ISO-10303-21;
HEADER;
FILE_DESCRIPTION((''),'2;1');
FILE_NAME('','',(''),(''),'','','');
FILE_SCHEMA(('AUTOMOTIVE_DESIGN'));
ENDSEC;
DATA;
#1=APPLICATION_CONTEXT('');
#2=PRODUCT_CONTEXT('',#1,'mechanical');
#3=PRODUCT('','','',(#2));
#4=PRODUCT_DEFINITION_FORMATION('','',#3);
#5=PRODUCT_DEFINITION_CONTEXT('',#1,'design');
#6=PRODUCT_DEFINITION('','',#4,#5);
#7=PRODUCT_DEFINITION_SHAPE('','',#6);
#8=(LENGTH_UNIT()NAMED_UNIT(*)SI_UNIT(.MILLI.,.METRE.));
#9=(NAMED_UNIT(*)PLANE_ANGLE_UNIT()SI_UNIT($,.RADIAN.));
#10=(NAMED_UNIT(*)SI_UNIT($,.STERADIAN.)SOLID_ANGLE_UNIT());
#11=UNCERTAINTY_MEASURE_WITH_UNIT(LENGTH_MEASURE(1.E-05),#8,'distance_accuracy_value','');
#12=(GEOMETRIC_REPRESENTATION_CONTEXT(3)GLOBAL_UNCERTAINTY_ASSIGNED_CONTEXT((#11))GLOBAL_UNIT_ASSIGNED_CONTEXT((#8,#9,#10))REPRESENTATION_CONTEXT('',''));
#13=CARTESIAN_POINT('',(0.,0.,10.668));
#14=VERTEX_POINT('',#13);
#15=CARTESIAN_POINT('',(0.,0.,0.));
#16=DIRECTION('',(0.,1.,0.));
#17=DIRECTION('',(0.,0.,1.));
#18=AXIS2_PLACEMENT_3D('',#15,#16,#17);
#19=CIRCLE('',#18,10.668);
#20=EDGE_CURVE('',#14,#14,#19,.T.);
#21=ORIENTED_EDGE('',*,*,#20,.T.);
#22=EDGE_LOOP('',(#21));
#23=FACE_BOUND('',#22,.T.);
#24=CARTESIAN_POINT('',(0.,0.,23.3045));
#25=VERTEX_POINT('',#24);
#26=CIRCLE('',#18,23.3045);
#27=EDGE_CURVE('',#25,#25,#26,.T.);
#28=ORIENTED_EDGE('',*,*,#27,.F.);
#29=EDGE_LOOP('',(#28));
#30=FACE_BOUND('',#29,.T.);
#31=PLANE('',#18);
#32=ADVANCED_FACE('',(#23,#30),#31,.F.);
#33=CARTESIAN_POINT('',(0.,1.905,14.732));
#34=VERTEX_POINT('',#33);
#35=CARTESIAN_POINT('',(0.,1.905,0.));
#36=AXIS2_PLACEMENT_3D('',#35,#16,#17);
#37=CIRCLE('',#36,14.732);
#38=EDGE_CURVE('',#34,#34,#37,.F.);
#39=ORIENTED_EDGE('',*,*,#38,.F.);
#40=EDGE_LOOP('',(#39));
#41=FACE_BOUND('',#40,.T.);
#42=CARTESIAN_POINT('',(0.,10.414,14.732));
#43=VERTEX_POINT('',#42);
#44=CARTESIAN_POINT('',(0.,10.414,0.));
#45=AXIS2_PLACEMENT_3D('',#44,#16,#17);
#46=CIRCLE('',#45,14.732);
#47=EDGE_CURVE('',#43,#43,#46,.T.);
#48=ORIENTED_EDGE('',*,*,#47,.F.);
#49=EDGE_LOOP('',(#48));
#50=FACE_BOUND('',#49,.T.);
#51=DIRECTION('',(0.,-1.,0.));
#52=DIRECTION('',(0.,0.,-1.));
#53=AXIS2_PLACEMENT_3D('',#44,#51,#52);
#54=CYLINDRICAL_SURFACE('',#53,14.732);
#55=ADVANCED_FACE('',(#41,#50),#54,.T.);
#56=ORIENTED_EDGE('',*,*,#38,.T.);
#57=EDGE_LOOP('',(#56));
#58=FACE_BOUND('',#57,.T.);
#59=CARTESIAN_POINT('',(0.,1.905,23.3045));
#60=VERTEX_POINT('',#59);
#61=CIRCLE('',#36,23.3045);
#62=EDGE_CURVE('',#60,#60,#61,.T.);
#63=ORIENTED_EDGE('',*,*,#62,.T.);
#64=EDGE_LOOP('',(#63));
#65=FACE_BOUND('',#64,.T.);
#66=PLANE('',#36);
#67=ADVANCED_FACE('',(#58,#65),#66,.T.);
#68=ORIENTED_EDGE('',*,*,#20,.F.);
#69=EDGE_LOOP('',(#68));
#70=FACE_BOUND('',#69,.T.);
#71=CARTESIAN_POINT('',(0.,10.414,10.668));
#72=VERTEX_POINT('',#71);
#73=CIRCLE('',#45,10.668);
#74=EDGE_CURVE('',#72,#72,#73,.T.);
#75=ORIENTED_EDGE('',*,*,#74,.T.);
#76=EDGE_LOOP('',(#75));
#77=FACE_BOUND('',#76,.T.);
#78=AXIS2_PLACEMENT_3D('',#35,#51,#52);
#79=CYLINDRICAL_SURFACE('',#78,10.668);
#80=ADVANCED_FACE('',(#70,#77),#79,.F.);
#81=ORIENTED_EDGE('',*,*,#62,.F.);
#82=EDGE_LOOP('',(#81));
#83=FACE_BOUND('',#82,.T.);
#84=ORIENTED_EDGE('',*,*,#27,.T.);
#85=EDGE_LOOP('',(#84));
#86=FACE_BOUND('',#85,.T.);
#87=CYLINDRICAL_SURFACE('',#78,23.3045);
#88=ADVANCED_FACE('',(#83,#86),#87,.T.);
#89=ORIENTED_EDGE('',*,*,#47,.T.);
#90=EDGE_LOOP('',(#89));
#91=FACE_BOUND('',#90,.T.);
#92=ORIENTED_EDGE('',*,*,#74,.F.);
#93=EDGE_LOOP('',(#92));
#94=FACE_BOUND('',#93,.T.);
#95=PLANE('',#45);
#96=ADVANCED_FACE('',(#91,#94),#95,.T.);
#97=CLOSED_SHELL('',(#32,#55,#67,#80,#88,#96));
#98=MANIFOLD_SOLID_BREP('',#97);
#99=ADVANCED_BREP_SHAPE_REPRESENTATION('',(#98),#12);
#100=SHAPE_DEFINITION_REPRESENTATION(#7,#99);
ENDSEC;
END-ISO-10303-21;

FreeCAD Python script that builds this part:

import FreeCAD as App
import Part
import Sketcher
from FreeCAD import Vector
Q = App.Units.Quantity

doc = App.newDocument("Part")
body = doc.addObject("PartDesign::Body", "Body")

# Sketch on XZ plane
sketch1 = doc.addObject("Sketcher::SketchObject", "Sketch")
body.addObject(sketch1)
sketch1.AttachmentSupport = (doc.XZ_Plane, [""])
sketch1.MapMode = "FlatFace"
sketch1.addGeometry(Part.Circle(Vector(0, 0, 0), Vector(0, 0, 1), 23), False)
sketch1.addGeometry(Part.Circle(Vector(0, 0, 0), Vector(0, 0, 1), 11), False)
sketch1.addConstraint(Sketcher.Constraint("Coincident", 0, 3, -1, 1))
sketch1.addConstraint(Sketcher.Constraint("Coincident", 1, 3, -1, 1))
sketch1.addConstraint(Sketcher.Constraint("Diameter", 1, Q("0.84 in")))
sketch1.addConstraint(Sketcher.Constraint("Diameter", 0, Q("1.835 in")))
pad1 = doc.addObject("PartDesign::Pad", "Pad")
body.addObject(pad1)
pad1.Profile = sketch1
pad1.Length = Q("0.075 in")
pad1.Reversed = True

# Sketch on XZ plane
sketch2 = doc.addObject("Sketcher::SketchObject", "Sketch001")
body.addObject(sketch2)
sketch2.AttachmentSupport = (doc.XZ_Plane, [""])
sketch2.MapMode = "FlatFace"
sketch2.addGeometry(Part.Circle(Vector(0, 0, 0), Vector(0, 0, 1), 15), False)
sketch2.addGeometry(Part.Circle(Vector(0, 0, 0), Vector(0, 0, 1), 11), False)
sketch2.addConstraint(Sketcher.Constraint("Coincident", 0, 3, -1, 1))
sketch2.addConstraint(Sketcher.Constraint("Coincident", 1, 3, -1, 1))
sketch2.addConstraint(Sketcher.Constraint("Diameter", 0, Q("1.16 in")))
sketch2.addConstraint(Sketcher.Constraint("Diameter", 1, Q("0.84 in")))
pad2 = doc.addObject("PartDesign::Pad", "Pad001")
body.addObject(pad2)
pad2.Profile = sketch2
pad2.Length = Q("0.41 in")
pad2.Reversed = True

doc.recompute()
